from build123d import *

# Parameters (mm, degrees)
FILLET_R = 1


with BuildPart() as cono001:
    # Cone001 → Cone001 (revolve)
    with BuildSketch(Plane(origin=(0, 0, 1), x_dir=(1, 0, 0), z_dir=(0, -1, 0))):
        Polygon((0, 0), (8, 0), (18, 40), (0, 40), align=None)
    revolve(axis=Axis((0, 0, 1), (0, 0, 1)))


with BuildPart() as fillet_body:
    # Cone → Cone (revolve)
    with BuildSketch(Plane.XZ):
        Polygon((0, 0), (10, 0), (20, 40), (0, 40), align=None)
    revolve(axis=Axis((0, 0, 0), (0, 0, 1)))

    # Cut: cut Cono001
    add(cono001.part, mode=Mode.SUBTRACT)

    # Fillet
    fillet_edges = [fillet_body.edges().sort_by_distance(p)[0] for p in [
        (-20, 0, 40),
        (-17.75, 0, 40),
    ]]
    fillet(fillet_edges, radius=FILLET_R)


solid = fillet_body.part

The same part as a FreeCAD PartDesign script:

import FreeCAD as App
import Part
import Sketcher
Q = App.Units.Quantity


def edges_at(feature, points):
    """Names of the edges that pass closest to the given points."""
    edges = feature.Shape.Edges
    near = lambda p: min(range(len(edges)), key=lambda i: edges[i].distToShape(Part.Vertex(*p))[0])
    return sorted({f"Edge{near(p) + 1}" for p in points})

doc = App.newDocument("Part")
params = doc.addObject("Spreadsheet::Sheet", "Params")
for row, (alias, value) in enumerate([
    ("sketch1_width", "8 mm"),
    ("sketch1_width2", "18 mm"),
    ("sketch1_height", "40 mm"),
    ("revolution_angle", "360 deg"),
    ("sketch2_width", "10 mm"),
    ("sketch2_width2", "20 mm"),
    ("sketch2_height", "40 mm"),
    ("revolution2_angle", "360 deg"),
    ("fillet_radius", "1 mm"),
], start=1):
    params.set(f"A{row}", alias)
    params.set(f"B{row}", "=" + value)
    params.setAlias(f"B{row}", alias)

body = doc.addObject("PartDesign::Body", "Body")

sketch1 = body.newObject("Sketcher::SketchObject", "Sketch")
sketch1.AttachmentSupport = (doc.getObject("XZ_Plane"), [""])
sketch1.MapMode = "FlatFace"
sketch1.addGeometry([
    Part.LineSegment(App.Vector(0, 1, 0), App.Vector(8, 1, 0)),
    Part.LineSegment(App.Vector(8, 1, 0), App.Vector(18, 41, 0)),
    Part.LineSegment(App.Vector(18, 41, 0), App.Vector(0, 41, 0)),
    Part.LineSegment(App.Vector(0, 41, 0), App.Vector(0, 1, 0)),
], False)
sketch1.addConstraint([
    Sketcher.Constraint("Coincident", 0, 2, 1, 1),
    Sketcher.Constraint("Coincident", 1, 2, 2, 1),
    Sketcher.Constraint("Coincident", 2, 2, 3, 1),
    Sketcher.Constraint("Coincident", 3, 2, 0, 1),
    Sketcher.Constraint("Horizontal", 0),
    Sketcher.Constraint("Horizontal", 2),
    Sketcher.Constraint("Vertical", 3),
    Sketcher.Constraint("PointOnObject", 2, 2, -2),
    Sketcher.Constraint("DistanceX", 0, 1, 0, 2, Q("8 mm")),
    Sketcher.Constraint("DistanceX", 2, 2, 2, 1, Q("18 mm")),
    Sketcher.Constraint("DistanceY", 3, 2, 3, 1, Q("40 mm")),
    Sketcher.Constraint("DistanceY", -1, 1, 0, 2, Q("1 mm")),
])
sketch1.setExpression("Constraints[8]", "Params.sketch1_width")
sketch1.setExpression("Constraints[9]", "Params.sketch1_width2")
sketch1.setExpression("Constraints[10]", "Params.sketch1_height")
revolution = body.newObject("PartDesign::Revolution", "Revolution")
revolution.Profile = sketch1
revolution.ReferenceAxis = (sketch1, ["V_Axis"])
revolution.setExpression("Angle", "Params.revolution_angle")
body2 = doc.addObject("PartDesign::Body", "Body001")

sketch2 = body2.newObject("Sketcher::SketchObject", "Sketch001")
sketch2.AttachmentSupport = (doc.getObject("XZ_Plane001"), [""])
sketch2.MapMode = "FlatFace"
sketch2.addGeometry([
    Part.LineSegment(App.Vector(0, 0, 0), App.Vector(10, 0, 0)),
    Part.LineSegment(App.Vector(10, 0, 0), App.Vector(20, 40, 0)),
    Part.LineSegment(App.Vector(20, 40, 0), App.Vector(0, 40, 0)),
    Part.LineSegment(App.Vector(0, 40, 0), App.Vector(0, 0, 0)),
], False)
sketch2.addConstraint([
    Sketcher.Constraint("Coincident", 0, 2, 1, 1),
    Sketcher.Constraint("Coincident", 1, 2, 2, 1),
    Sketcher.Constraint("Coincident", 2, 2, 3, 1),
    Sketcher.Constraint("Coincident", 3, 2, 0, 1),
    Sketcher.Constraint("Horizontal", 0),
    Sketcher.Constraint("Horizontal", 2),
    Sketcher.Constraint("Vertical", 3),
    Sketcher.Constraint("Coincident", 3, 2, -1, 1),
    Sketcher.Constraint("DistanceX", 0, 1, 0, 2, Q("10 mm")),
    Sketcher.Constraint("DistanceX", 2, 2, 2, 1, Q("20 mm")),
    Sketcher.Constraint("DistanceY", 3, 2, 3, 1, Q("40 mm")),
])
sketch2.setExpression("Constraints[8]", "Params.sketch2_width")
sketch2.setExpression("Constraints[9]", "Params.sketch2_width2")
sketch2.setExpression("Constraints[10]", "Params.sketch2_height")
revolution2 = body2.newObject("PartDesign::Revolution", "Revolution001")
revolution2.Profile = sketch2
revolution2.ReferenceAxis = (sketch2, ["V_Axis"])
revolution2.setExpression("Angle", "Params.revolution2_angle")
doc.recompute()

boolean = body2.newObject("PartDesign::Boolean", "Boolean")
boolean.Type = "Cut"
boolean.addObjects([body])
doc.recompute()

fillet = body2.newObject("PartDesign::Fillet", "Fillet")
fillet.Base = (boolean, edges_at(boolean, [(-20, 0, 40), (-17.75, 0, 40)]))
fillet.setExpression("Radius", "Params.fillet_radius")

doc.recompute()
